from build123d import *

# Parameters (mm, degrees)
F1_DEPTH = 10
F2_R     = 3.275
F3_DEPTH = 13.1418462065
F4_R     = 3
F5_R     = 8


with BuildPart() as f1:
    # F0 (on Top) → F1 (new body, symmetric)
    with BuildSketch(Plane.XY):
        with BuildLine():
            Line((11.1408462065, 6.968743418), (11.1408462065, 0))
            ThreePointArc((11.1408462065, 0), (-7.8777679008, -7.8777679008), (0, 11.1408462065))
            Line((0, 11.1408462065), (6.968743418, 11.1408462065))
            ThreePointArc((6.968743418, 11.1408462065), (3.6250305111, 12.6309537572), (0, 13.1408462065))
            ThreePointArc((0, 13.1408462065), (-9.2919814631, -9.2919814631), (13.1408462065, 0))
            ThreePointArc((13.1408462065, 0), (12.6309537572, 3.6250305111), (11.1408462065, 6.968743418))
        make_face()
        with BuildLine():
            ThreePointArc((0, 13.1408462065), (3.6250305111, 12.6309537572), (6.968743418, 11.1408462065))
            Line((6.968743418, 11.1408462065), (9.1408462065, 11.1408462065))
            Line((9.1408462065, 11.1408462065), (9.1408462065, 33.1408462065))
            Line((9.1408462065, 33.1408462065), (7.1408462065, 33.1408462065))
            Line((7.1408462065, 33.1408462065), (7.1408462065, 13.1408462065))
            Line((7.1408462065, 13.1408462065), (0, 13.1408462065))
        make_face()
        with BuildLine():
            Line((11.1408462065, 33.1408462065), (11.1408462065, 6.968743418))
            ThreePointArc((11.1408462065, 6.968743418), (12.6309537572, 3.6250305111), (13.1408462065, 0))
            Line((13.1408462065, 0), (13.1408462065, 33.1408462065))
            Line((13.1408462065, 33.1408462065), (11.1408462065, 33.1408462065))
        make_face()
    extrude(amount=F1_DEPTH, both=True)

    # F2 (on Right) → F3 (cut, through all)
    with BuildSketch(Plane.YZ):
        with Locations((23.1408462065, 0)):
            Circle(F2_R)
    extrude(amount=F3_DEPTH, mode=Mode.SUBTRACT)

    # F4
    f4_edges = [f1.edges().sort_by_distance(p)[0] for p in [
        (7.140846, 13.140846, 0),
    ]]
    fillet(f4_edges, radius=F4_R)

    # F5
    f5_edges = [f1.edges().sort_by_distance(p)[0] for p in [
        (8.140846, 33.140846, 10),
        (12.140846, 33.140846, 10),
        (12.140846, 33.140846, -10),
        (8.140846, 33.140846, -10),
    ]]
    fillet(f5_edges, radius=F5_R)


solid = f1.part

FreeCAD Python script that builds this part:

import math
import FreeCAD as App
import Part
import Sketcher
from FreeCAD import Vector


def edges_at(feature, points):
    """Names of the edges that pass closest to the given points."""
    edges = feature.Shape.Edges
    near = lambda p: min(range(len(edges)), key=lambda i: edges[i].distToShape(Part.Vertex(*p))[0])
    return sorted({f"Edge{near(p) + 1}" for p in points})

doc = App.newDocument("Part")
body = doc.addObject("PartDesign::Body", "Body")

# Sketch on XY plane
sketch1 = doc.addObject("Sketcher::SketchObject", "Sketch")
body.addObject(sketch1)
sketch1.AttachmentSupport = (doc.XY_Plane, [""])
sketch1.MapMode = "FlatFace"
sketch1.addGeometry([
    Part.ArcOfCircle(Part.Circle(Vector(0, 0, 0), Vector(0, 0, 1), 11.140846), math.radians(90), math.radians(360)),  # 0
    Part.LineSegment(Vector(0, 11.140846, 0), Vector(9.140846, 11.140846, 0)),  # 1
    Part.LineSegment(Vector(9.140846, 11.140846, 0), Vector(9.140846, 33.140846, 0)),  # 2
    Part.LineSegment(Vector(9.140846, 33.140846, 0), Vector(7.140846, 33.140846, 0)),  # 3
    Part.LineSegment(Vector(7.140846, 33.140846, 0), Vector(7.140846, 13.140846, 0)),  # 4
    Part.LineSegment(Vector(7.140846, 13.140846, 0), Vector(0, 13.140846, 0)),  # 5
    Part.ArcOfCircle(Part.Circle(Vector(0, 0, 0), Vector(0, 0, 1), 13.140846), math.radians(90), math.radians(360)),  # 6
    Part.LineSegment(Vector(13.140846, 0, 0), Vector(13.140846, 33.140846, 0)),  # 7
    Part.LineSegment(Vector(13.140846, 33.140846, 0), Vector(11.140846, 33.140846, 0)),  # 8
    Part.LineSegment(Vector(11.140846, 33.140846, 0), Vector(11.140846, 0, 0)),  # 9
], False)
sketch1.addConstraint([
    Sketcher.Constraint("Tangent", 0, 1, 1, 1),
    Sketcher.Constraint("Coincident", 1, 2, 2, 1),
    Sketcher.Constraint("Coincident", 2, 2, 3, 1),
    Sketcher.Constraint("Coincident", 3, 2, 4, 1),
    Sketcher.Constraint("Coincident", 4, 2, 5, 1),
    Sketcher.Constraint("Tangent", 5, 2, 6, 1),
    Sketcher.Constraint("Tangent", 6, 2, 7, 1),
    Sketcher.Constraint("Coincident", 7, 2, 8, 1),
    Sketcher.Constraint("Coincident", 8, 2, 9, 1),
    Sketcher.Constraint("Tangent", 9, 2, 0, 2),
    Sketcher.Constraint("Horizontal", 1),
    Sketcher.Constraint("Vertical", 2),
    Sketcher.Constraint("Horizontal", 3),
    Sketcher.Constraint("Vertical", 4),
    Sketcher.Constraint("Horizontal", 5),
    Sketcher.Constraint("Vertical", 7),
    Sketcher.Constraint("Horizontal", 8),
    Sketcher.Constraint("Vertical", 9),
    Sketcher.Constraint("Coincident", 0, 3, -1, 1),
    Sketcher.Constraint("Coincident", 6, 3, -1, 1),
    Sketcher.Constraint("Horizontal", 3, 2, 7, 2),
    Sketcher.Constraint("Equal", 3, 8),
    Sketcher.Constraint("DistanceX", 3, 2, 3, 1, 2.0),
    Sketcher.Constraint("DistanceY", 2, 1, 2, 2, 22.0),
    Sketcher.Constraint("DistanceX", 1, 2, 6, 2, 4.0),
    Sketcher.Constraint("Radius", 0, 11.140846),
])
pad1 = doc.addObject("PartDesign::Pad", "Pad")
body.addObject(pad1)
pad1.Profile = sketch1
pad1.Length = 20
pad1.Midplane = True

# Sketch on YZ plane
sketch2 = doc.addObject("Sketcher::SketchObject", "Sketch001")
body.addObject(sketch2)
sketch2.AttachmentSupport = (doc.YZ_Plane, [""])
sketch2.MapMode = "FlatFace"
sketch2.addGeometry(Part.Circle(Vector(23.140846, 0, 0), Vector(0, 0, 1), 3.275), False)
sketch2.addConstraint([
    Sketcher.Constraint("PointOnObject", 0, 3, -1),
    Sketcher.Constraint("Diameter", 0, 6.55),
    Sketcher.Constraint("DistanceX", -1, 1, 0, 3, 23.140846),
])
pocket1 = doc.addObject("PartDesign::Pocket", "Pocket")
body.addObject(pocket1)
pocket1.Profile = sketch2
pocket1.Type = "ThroughAll"
pocket1.Reversed = True
doc.recompute()

fillet = doc.addObject("PartDesign::Fillet", "Fillet")
body.addObject(fillet)
fillet.Base = (pocket1, edges_at(pocket1, [(7.141, 13.141, 0)]))
fillet.Radius = 3
doc.recompute()

fillet2 = doc.addObject("PartDesign::Fillet", "Fillet001")
body.addObject(fillet2)
fillet2.Base = (fillet, edges_at(fillet, [
    (8.141, 33.141, 10),
    (12.141, 33.141, 10),
    (12.141, 33.141, -10),
    (8.141, 33.141, -10),
]))
fillet2.Radius = 8

doc.recompute()
